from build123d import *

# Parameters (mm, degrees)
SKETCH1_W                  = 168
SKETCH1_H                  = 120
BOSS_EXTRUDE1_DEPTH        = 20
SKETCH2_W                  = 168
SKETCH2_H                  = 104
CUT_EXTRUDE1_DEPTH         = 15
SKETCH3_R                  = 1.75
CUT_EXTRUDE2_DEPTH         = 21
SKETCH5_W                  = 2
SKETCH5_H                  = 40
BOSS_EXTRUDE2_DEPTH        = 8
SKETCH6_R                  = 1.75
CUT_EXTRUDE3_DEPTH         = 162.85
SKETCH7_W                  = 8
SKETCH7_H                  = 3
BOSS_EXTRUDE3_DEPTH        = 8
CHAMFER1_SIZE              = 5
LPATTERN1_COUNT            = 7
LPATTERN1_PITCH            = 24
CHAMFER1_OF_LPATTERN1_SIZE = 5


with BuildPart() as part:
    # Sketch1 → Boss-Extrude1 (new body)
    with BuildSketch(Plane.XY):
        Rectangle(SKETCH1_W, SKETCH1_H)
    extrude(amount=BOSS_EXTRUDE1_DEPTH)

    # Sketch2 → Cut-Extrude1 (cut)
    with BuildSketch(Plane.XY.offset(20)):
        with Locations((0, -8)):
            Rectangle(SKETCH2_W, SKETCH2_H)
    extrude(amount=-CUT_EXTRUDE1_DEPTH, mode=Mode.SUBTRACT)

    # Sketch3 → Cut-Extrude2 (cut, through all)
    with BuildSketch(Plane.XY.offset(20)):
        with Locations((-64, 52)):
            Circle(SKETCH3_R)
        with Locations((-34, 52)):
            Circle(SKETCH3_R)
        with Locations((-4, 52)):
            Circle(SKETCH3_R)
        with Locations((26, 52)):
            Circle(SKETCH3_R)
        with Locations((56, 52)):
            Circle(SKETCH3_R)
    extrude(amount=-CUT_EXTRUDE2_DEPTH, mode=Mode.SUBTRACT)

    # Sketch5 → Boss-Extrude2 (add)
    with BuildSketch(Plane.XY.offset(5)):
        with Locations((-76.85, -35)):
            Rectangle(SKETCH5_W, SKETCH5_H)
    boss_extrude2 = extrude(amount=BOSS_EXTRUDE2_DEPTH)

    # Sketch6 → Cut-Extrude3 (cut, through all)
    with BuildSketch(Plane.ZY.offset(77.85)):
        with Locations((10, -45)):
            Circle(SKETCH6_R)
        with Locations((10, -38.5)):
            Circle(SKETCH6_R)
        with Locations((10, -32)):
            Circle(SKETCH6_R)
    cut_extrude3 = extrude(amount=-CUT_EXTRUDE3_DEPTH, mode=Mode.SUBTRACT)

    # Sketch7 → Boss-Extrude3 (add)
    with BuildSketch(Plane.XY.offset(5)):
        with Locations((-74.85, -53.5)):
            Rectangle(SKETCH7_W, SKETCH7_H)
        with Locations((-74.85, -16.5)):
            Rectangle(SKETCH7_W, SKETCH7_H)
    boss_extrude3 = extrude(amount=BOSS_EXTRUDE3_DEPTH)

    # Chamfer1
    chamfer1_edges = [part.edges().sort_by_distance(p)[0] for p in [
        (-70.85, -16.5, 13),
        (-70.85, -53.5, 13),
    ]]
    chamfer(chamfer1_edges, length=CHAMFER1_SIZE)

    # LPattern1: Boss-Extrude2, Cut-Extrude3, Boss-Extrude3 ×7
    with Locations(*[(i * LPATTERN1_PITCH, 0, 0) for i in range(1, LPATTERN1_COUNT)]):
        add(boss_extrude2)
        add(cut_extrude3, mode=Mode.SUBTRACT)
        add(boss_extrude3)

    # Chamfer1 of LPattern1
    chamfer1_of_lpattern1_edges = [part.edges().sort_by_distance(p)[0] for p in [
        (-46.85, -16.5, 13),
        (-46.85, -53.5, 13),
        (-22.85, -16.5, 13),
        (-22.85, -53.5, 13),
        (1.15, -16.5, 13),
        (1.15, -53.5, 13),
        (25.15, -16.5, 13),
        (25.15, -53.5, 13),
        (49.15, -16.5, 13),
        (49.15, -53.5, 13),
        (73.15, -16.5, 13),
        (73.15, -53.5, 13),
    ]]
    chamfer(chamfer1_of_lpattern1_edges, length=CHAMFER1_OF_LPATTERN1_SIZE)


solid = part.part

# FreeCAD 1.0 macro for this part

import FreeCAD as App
import Part
import Sketcher

V = App.Vector
Q = App.Units.Quantity


def edges_at(feature, points):
    """Names of the edges that pass closest to the given points."""
    edges = feature.Shape.Edges
    near = lambda p: min(range(len(edges)), key=lambda i: edges[i].distToShape(Part.Vertex(*p))[0])
    return sorted({f"Edge{near(p) + 1}" for p in points})


def add_polygon(sketch, points):
    """Adds a closed chain of lines whose ends are joined by coincident constraints."""
    first, n = sketch.GeometryCount, len(points)
    for a, b in zip(points, points[1:] + points[:1]):
        sketch.addGeometry(Part.LineSegment(App.Vector(*a, 0), App.Vector(*b, 0)), False)
    for i in range(n):
        sketch.addConstraint(Sketcher.Constraint("Coincident", first + i, 2, first + (i + 1) % n, 1))

doc = App.newDocument("Part")
body = doc.addObject("PartDesign::Body", "Body")

sketch1 = doc.addObject("Sketcher::SketchObject", "Sketch")
body.addObject(sketch1)
sketch1.AttachmentSupport = (doc.XY_Plane, [""])
sketch1.MapMode = "FlatFace"
add_polygon(sketch1, [(-84, 60), (-84, -60), (84, -60), (84, 60)])
sketch1.addConstraint([
    Sketcher.Constraint("Vertical", 0),
    Sketcher.Constraint("Horizontal", 1),
    Sketcher.Constraint("Vertical", 2),
    Sketcher.Constraint("Horizontal", 3),
    Sketcher.Constraint("Symmetric", 0, 2, 2, 2, -1, 1),
    Sketcher.Constraint("DistanceX", 1, 1, 1, 2, Q("168 mm")),
    Sketcher.Constraint("DistanceY", 0, 2, 0, 1, Q("120 mm")),
])
pad1 = doc.addObject("PartDesign::Pad", "Pad")
body.addObject(pad1)
pad1.Profile = sketch1
pad1.Length = 20

sketch2 = doc.addObject("Sketcher::SketchObject", "Sketch001")
body.addObject(sketch2)
sketch2.AttachmentSupport = (doc.XY_Plane, [""])
sketch2.MapMode = "FlatFace"
sketch2.AttachmentOffset = App.Placement(V(0, 0, 20), App.Rotation())
add_polygon(sketch2, [(-84, 44), (-84, -60), (84, -60), (84, 44)])
sketch2.addConstraint([
    Sketcher.Constraint("Vertical", 0),
    Sketcher.Constraint("Horizontal", 1),
    Sketcher.Constraint("Vertical", 2),
    Sketcher.Constraint("Horizontal", 3),
    Sketcher.Constraint("DistanceX", 1, 1, 1, 2, Q("168 mm")),
    Sketcher.Constraint("DistanceY", 0, 2, 0, 1, Q("104 mm")),
    Sketcher.Constraint("DistanceX", 0, 2, -1, 1, Q("84 mm")),
    Sketcher.Constraint("DistanceY", 0, 2, -1, 1, Q("60 mm")),
])
pocket1 = doc.addObject("PartDesign::Pocket", "Pocket")
body.addObject(pocket1)
pocket1.Profile = sketch2
pocket1.Length = 15

sketch3 = doc.addObject("Sketcher::SketchObject", "Sketch002")
body.addObject(sketch3)
sketch3.AttachmentSupport = (doc.XY_Plane, [""])
sketch3.MapMode = "FlatFace"
sketch3.AttachmentOffset = App.Placement(V(0, 0, 20), App.Rotation())
sketch3.addGeometry([
    Part.Circle(V(-64, 52, 0), V(0, 0, 1), 1.8),
    Part.Circle(V(-34, 52, 0), V(0, 0, 1), 1.8),
    Part.Circle(V(-4, 52, 0), V(0, 0, 1), 1.8),
    Part.Circle(V(26, 52, 0), V(0, 0, 1), 1.8),
    Part.Circle(V(56, 52, 0), V(0, 0, 1), 1.8),
], False)
sketch3.addConstraint([
    Sketcher.Constraint("Equal", 0, 1),
    Sketcher.Constraint("Equal", 1, 2),
    Sketcher.Constraint("Equal", 2, 3),
    Sketcher.Constraint("Equal", 3, 4),
    Sketcher.Constraint("Horizontal", 0, 3, 1, 3),
    Sketcher.Constraint("Horizontal", 1, 3, 2, 3),
    Sketcher.Constraint("Horizontal", 2, 3, 3, 3),
    Sketcher.Constraint("Horizontal", 3, 3, 4, 3),
    Sketcher.Constraint("Diameter", 0, Q("3.5 mm")),
    Sketcher.Constraint("DistanceX", 0, 3, -1, 1, Q("64 mm")),
    Sketcher.Constraint("DistanceY", -1, 1, 0, 3, Q("52 mm")),
    Sketcher.Constraint("DistanceX", 1, 3, -1, 1, Q("34 mm")),
    Sketcher.Constraint("DistanceX", 2, 3, -1, 1, Q("4 mm")),
    Sketcher.Constraint("DistanceX", -1, 1, 3, 3, Q("26 mm")),
    Sketcher.Constraint("DistanceX", -1, 1, 4, 3, Q("56 mm")),
])
pocket2 = doc.addObject("PartDesign::Pocket", "Pocket001")
body.addObject(pocket2)
pocket2.Profile = sketch3
pocket2.Type = "ThroughAll"

sketch4 = doc.addObject("Sketcher::SketchObject", "Sketch003")
body.addObject(sketch4)
sketch4.AttachmentSupport = (doc.XY_Plane, [""])
sketch4.MapMode = "FlatFace"
sketch4.AttachmentOffset = App.Placement(V(0, 0, 5), App.Rotation())
add_polygon(sketch4, [(-77.8, -15), (-77.8, -55), (-75.8, -55), (-75.8, -15)])
sketch4.addConstraint([
    Sketcher.Constraint("Vertical", 0),
    Sketcher.Constraint("Horizontal", 1),
    Sketcher.Constraint("Vertical", 2),
    Sketcher.Constraint("Horizontal", 3),
    Sketcher.Constraint("DistanceX", 1, 1, 1, 2, Q("2 mm")),
    Sketcher.Constraint("DistanceY", 0, 2, 0, 1, Q("40 mm")),
    Sketcher.Constraint("DistanceY", 0, 2, -1, 1, Q("55 mm")),
    Sketcher.Constraint("DistanceX", 0, 2, -1, 1, Q("77.85 mm")),
])
pad2 = doc.addObject("PartDesign::Pad", "Pad001")
body.addObject(pad2)
pad2.Profile = sketch4
pad2.Length = 8

sketch5 = doc.addObject("Sketcher::SketchObject", "Sketch004")
body.addObject(sketch5)
sketch5.AttachmentSupport = (doc.YZ_Plane, [""])
sketch5.MapMode = "FlatFace"
sketch5.AttachmentOffset = App.Placement(V(0, 0, -77.85), App.Rotation())
sketch5.addGeometry([
    Part.Circle(V(-45, 10, 0), V(0, 0, 1), 1.8),
    Part.Circle(V(-38.5, 10, 0), V(0, 0, 1), 1.8),
    Part.Circle(V(-32, 10, 0), V(0, 0, 1), 1.8),
], False)
sketch5.addConstraint([
    Sketcher.Constraint("Equal", 0, 1),
    Sketcher.Constraint("Equal", 1, 2),
    Sketcher.Constraint("Horizontal", 0, 3, 1, 3),
    Sketcher.Constraint("Horizontal", 1, 3, 2, 3),
    Sketcher.Constraint("Diameter", 0, Q("3.5 mm")),
    Sketcher.Constraint("DistanceX", 0, 3, -1, 1, Q("45 mm")),
    Sketcher.Constraint("DistanceY", -1, 1, 0, 3, Q("10 mm")),
    Sketcher.Constraint("DistanceX", 2, 3, -1, 1, Q("32 mm")),
    Sketcher.Constraint("DistanceX", 1, 3, -1, 1, Q("38.5 mm")),
])
pocket3 = doc.addObject("PartDesign::Pocket", "Pocket002")
body.addObject(pocket3)
pocket3.Profile = sketch5
pocket3.Type = "ThroughAll"
pocket3.Reversed = True

sketch6 = doc.addObject("Sketcher::SketchObject", "Sketch005")
body.addObject(sketch6)
sketch6.AttachmentSupport = (doc.XY_Plane, [""])
sketch6.MapMode = "FlatFace"
sketch6.AttachmentOffset = App.Placement(V(0, 0, 5), App.Rotation())
add_polygon(sketch6, [(-78.8, -52), (-78.8, -55), (-70.8, -55), (-70.8, -52)])
add_polygon(sketch6, [(-78.8, -15), (-78.8, -18), (-70.8, -18), (-70.8, -15)])
sketch6.addConstraint([
    Sketcher.Constraint("Vertical", 0),
    Sketcher.Constraint("Horizontal", 1),
    Sketcher.Constraint("Vertical", 2),
    Sketcher.Constraint("Horizontal", 3),
    Sketcher.Constraint("Vertical", 4),
    Sketcher.Constraint("Horizontal", 5),
    Sketcher.Constraint("Vertical", 6),
    Sketcher.Constraint("Horizontal", 7),
    Sketcher.Constraint("Vertical", 3, 2, 4, 2),
    Sketcher.Constraint("Vertical", 2, 2, 5, 2),
    Sketcher.Constraint("Equal", 2, 4),
    Sketcher.Constraint("DistanceX", 1, 1, 1, 2, Q("8 mm")),
    Sketcher.Constraint("DistanceY", 0, 2, 0, 1, Q("3 mm")),
    Sketcher.Constraint("DistanceY", 0, 2, -1, 1, Q("55 mm")),
    Sketcher.Constraint("DistanceY", 4, 2, -1, 1, Q("18 mm")),
    Sketcher.Constraint("DistanceX", 0, 2, -1, 1, Q("78.85 mm")),
])
pad3 = doc.addObject("PartDesign::Pad", "Pad002")
body.addObject(pad3)
pad3.Profile = sketch6
pad3.Length = 8
doc.recompute()

chamfer = doc.addObject("PartDesign::Chamfer", "Chamfer")
body.addObject(chamfer)
chamfer.Base = (pad3, edges_at(pad3, [(-70.85, -16.5, 13), (-70.85, -53.5, 13)]))
chamfer.Size = 5
doc.recompute()

linearpattern = doc.addObject("PartDesign::LinearPattern", "LinearPattern")
body.addObject(linearpattern)
linearpattern.Originals = [pad2, pocket3, pad3]
linearpattern.Direction = (doc.X_Axis, [""])
linearpattern.Mode = "offset"
linearpattern.Offset = 24
linearpattern.Occurrences = 7
body.Tip = linearpattern
doc.recompute()

chamfer2 = doc.addObject("PartDesign::Chamfer", "Chamfer001")
body.addObject(chamfer2)
chamfer2.Base = (linearpattern, edges_at(linearpattern, [
    (-46.85, -16.5, 13),
    (-46.85, -53.5, 13),
    (-22.85, -16.5, 13),
    (-22.85, -53.5, 13),
    (1.15, -16.5, 13),
    (1.15, -53.5, 13),
    (25.15, -16.5, 13),
    (25.15, -53.5, 13),
    (49.15, -16.5, 13),
    (49.15, -53.5, 13),
    (73.15, -16.5, 13),
    (73.15, -53.5, 13),
]))
chamfer2.Size = 5

doc.recompute()
